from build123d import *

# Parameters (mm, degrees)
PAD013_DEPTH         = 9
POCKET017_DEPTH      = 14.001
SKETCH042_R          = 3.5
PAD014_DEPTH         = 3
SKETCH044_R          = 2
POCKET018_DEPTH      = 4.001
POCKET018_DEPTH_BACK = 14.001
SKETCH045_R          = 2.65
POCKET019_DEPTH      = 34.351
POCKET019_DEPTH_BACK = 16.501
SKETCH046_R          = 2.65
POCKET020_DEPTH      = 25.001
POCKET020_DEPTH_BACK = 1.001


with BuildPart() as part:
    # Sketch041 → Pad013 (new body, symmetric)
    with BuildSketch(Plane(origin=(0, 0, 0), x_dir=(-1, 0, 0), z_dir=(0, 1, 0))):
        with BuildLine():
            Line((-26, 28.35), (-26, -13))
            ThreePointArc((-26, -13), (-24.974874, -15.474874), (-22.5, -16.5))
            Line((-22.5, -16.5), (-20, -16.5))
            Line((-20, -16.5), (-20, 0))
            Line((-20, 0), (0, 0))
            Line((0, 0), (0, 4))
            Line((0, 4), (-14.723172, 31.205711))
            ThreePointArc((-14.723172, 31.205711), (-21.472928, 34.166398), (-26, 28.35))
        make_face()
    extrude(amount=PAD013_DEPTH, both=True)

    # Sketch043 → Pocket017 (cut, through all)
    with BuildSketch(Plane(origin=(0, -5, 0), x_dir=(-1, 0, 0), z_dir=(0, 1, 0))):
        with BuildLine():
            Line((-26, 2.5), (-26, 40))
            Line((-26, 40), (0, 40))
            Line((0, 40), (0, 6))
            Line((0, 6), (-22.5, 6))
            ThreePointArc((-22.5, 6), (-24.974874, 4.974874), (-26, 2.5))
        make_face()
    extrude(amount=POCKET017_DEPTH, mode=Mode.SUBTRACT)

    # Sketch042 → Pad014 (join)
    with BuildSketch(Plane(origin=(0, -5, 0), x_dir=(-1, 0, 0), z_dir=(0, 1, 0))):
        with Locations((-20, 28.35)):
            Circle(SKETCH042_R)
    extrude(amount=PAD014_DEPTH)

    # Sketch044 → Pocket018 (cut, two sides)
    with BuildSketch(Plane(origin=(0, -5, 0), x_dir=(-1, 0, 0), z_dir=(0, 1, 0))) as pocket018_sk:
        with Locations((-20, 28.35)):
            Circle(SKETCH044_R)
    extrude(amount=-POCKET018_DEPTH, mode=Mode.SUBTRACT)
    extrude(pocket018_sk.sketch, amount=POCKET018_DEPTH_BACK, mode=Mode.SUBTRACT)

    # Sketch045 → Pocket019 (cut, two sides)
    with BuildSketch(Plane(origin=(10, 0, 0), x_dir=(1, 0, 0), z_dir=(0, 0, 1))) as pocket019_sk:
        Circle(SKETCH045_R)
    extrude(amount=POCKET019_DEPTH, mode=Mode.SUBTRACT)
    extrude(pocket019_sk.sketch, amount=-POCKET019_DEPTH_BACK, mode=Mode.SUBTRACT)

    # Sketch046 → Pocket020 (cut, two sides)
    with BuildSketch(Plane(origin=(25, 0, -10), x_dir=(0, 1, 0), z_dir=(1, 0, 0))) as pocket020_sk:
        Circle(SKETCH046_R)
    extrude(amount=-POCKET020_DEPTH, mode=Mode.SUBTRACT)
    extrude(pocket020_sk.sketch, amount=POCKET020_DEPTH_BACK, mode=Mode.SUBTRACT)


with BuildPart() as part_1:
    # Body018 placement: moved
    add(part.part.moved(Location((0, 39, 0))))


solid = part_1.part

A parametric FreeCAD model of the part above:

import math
import FreeCAD as App
import Part
import Sketcher

V = App.Vector
Q = App.Units.Quantity

doc = App.newDocument("Part")
params = doc.addObject("Spreadsheet::Sheet", "Params")
for row, (alias, value) in enumerate([
    ("sketch1_radius", "6 mm"),
    ("sketch1_radius2", "3.499999 mm"),
    ("sketch1_width", "20 mm"),
    ("sketch1_height", "4 mm"),
    ("sketch1_height2", "16.5 mm"),
    ("pad1_length", "18 mm"),
    ("sketch2_radius", "3.499999 mm"),
    ("sketch2_width", "26 mm"),
    ("sketch2_height", "34 mm"),
    ("sketch3_diameter", "7 mm"),
    ("pad2_length", "3 mm"),
    ("sketch4_diameter", "4 mm"),
    ("sketch5_diameter", "5.3 mm"),
    ("sketch6_diameter", "5.3 mm"),
], start=1):
    params.set(f"A{row}", alias)
    params.set(f"B{row}", "=" + value)
    params.setAlias(f"B{row}", alias)

body = doc.addObject("PartDesign::Body", "Body")

sketch1 = body.newObject("Sketcher::SketchObject", "Sketch")
sketch1.AttachmentSupport = (doc.getObject("XZ_Plane"), [""])
sketch1.MapMode = "FlatFace"
sketch1.addGeometry(Part.LineSegment(V(26, 28.4, 0), V(26, -13, 0)), False)
sketch1.addGeometry(Part.ArcOfCircle(Part.Circle(V(22.5, -13, 0), V(0, 0, 1), 3.5), math.radians(-90), math.radians(0)), False)
sketch1.addGeometry(Part.LineSegment(V(22.5, -16.5, 0), V(20, -16.5, 0)), False)
sketch1.addGeometry(Part.LineSegment(V(20, -16.5, 0), V(20, 0, 0)), False)
sketch1.addGeometry(Part.LineSegment(V(20, 0, 0), V(0, 0, 0)), False)
sketch1.addGeometry(Part.LineSegment(V(0, 0, 0), V(0, 4, 0)), False)
sketch1.addGeometry(Part.LineSegment(V(0, 4, 0), V(14.7, 31.2, 0)), False)
sketch1.addGeometry(Part.ArcOfCircle(Part.Circle(V(20, 28.4, 0), V(0, 0, 1), 6), math.radians(0), math.radians(152)), False)
sketch1.addConstraint(Sketcher.Constraint("Tangent", 0, 2, 1, 2))
sketch1.addConstraint(Sketcher.Constraint("Tangent", 1, 1, 2, 1))
sketch1.addConstraint(Sketcher.Constraint("Coincident", 2, 2, 3, 1))
sketch1.addConstraint(Sketcher.Constraint("Coincident", 3, 2, 4, 1))
sketch1.addConstraint(Sketcher.Constraint("Coincident", 4, 2, 5, 1))
sketch1.addConstraint(Sketcher.Constraint("Coincident", 5, 2, 6, 1))
sketch1.addConstraint(Sketcher.Constraint("Tangent", 6, 2, 7, 2))
sketch1.addConstraint(Sketcher.Constraint("Tangent", 7, 1, 0, 1))
sketch1.addConstraint(Sketcher.Constraint("Vertical", 0))
sketch1.addConstraint(Sketcher.Constraint("Horizontal", 2))
sketch1.addConstraint(Sketcher.Constraint("Vertical", 3))
sketch1.addConstraint(Sketcher.Constraint("Horizontal", 4))
sketch1.addConstraint(Sketcher.Constraint("Vertical", 5))
sketch1.addConstraint(Sketcher.Constraint("Coincident", 4, 2, -1, 1))
sketch1.addConstraint(Sketcher.Constraint("Vertical", 7, 3, 2, 2))
sketch1.addConstraint(Sketcher.Constraint("Radius", 7, Q("6 mm")))
sketch1.addConstraint(Sketcher.Constraint("Radius", 1, Q("3.499999 mm")))
sketch1.addConstraint(Sketcher.Constraint("DistanceX", 4, 2, 4, 1, Q("20 mm")))
sketch1.addConstraint(Sketcher.Constraint("DistanceY", 5, 1, 5, 2, Q("4 mm")))
sketch1.addConstraint(Sketcher.Constraint("DistanceY", 3, 1, 3, 2, Q("16.5 mm")))
sketch1.addConstraint(Sketcher.Constraint("DistanceY", 0, 2, 0, 1, Q("41.35 mm")))
sketch1.setExpression("Constraints[15]", "Params.sketch1_radius")
sketch1.setExpression("Constraints[16]", "Params.sketch1_radius2")
sketch1.setExpression("Constraints[17]", "Params.sketch1_width")
sketch1.setExpression("Constraints[18]", "Params.sketch1_height")
sketch1.setExpression("Constraints[19]", "Params.sketch1_height2")
pad1 = body.newObject("PartDesign::Pad", "Pad")
pad1.Profile = sketch1
pad1.setExpression("Length", "Params.pad1_length")
pad1.Midplane = True

sketch2 = body.newObject("Sketcher::SketchObject", "Sketch001")
sketch2.AttachmentSupport = (doc.getObject("XZ_Plane"), [""])
sketch2.MapMode = "FlatFace"
sketch2.AttachmentOffset = App.Placement(V(0, 0, 5), App.Rotation())
sketch2.addGeometry(Part.LineSegment(V(26, 40, 0), V(26, 2.5, 0)), False)
sketch2.addGeometry(Part.ArcOfCircle(Part.Circle(V(22.5, 2.5, 0), V(0, 0, 1), 3.5), math.radians(0), math.radians(90)), False)
sketch2.addGeometry(Part.LineSegment(V(22.5, 6, 0), V(0, 6, 0)), False)
sketch2.addGeometry(Part.LineSegment(V(0, 6, 0), V(0, 40, 0)), False)
sketch2.addGeometry(Part.LineSegment(V(0, 40, 0), V(26, 40, 0)), False)
sketch2.addConstraint(Sketcher.Constraint("Tangent", 0, 2, 1, 1))
sketch2.addConstraint(Sketcher.Constraint("Tangent", 1, 2, 2, 1))
sketch2.addConstraint(Sketcher.Constraint("Coincident", 2, 2, 3, 1))
sketch2.addConstraint(Sketcher.Constraint("Coincident", 3, 2, 4, 1))
sketch2.addConstraint(Sketcher.Constraint("Coincident", 4, 2, 0, 1))
sketch2.addConstraint(Sketcher.Constraint("Vertical", 0))
sketch2.addConstraint(Sketcher.Constraint("Horizontal", 2))
sketch2.addConstraint(Sketcher.Constraint("Vertical", 3))
sketch2.addConstraint(Sketcher.Constraint("Horizontal", 4))
sketch2.addConstraint(Sketcher.Constraint("PointOnObject", 2, 2, -2))
sketch2.addConstraint(Sketcher.Constraint("Radius", 1, Q("3.499999 mm")))
sketch2.addConstraint(Sketcher.Constraint("DistanceX", 4, 1, 4, 2, Q("26 mm")))
sketch2.addConstraint(Sketcher.Constraint("DistanceY", 3, 1, 3, 2, Q("34 mm")))
sketch2.addConstraint(Sketcher.Constraint("DistanceY", -1, 1, 1, 2, Q("6 mm")))
sketch2.setExpression("Constraints[10]", "Params.sketch2_radius")
sketch2.setExpression("Constraints[11]", "Params.sketch2_width")
sketch2.setExpression("Constraints[12]", "Params.sketch2_height")
pocket1 = body.newObject("PartDesign::Pocket", "Pocket")
pocket1.Profile = sketch2
pocket1.Type = "ThroughAll"

sketch3 = body.newObject("Sketcher::SketchObject", "Sketch002")
sketch3.AttachmentSupport = (doc.getObject("XZ_Plane"), [""])
sketch3.MapMode = "FlatFace"
sketch3.AttachmentOffset = App.Placement(V(0, 0, 5), App.Rotation())
sketch3.addGeometry(Part.Circle(V(20, 28.4, 0), V(0, 0, 1), 3.5), False)
sketch3.addConstraint(Sketcher.Constraint("Diameter", 0, Q("7 mm")))
sketch3.addConstraint(Sketcher.Constraint("DistanceX", -1, 1, 0, 3, Q("20 mm")))
sketch3.addConstraint(Sketcher.Constraint("DistanceY", -1, 1, 0, 3, Q("28.35 mm")))
sketch3.setExpression("Constraints[0]", "Params.sketch3_diameter")
pad2 = body.newObject("PartDesign::Pad", "Pad001")
pad2.Profile = sketch3
pad2.setExpression("Length", "Params.pad2_length")
pad2.Reversed = True

sketch4 = body.newObject("Sketcher::SketchObject", "Sketch003")
sketch4.AttachmentSupport = (doc.getObject("XZ_Plane"), [""])
sketch4.MapMode = "FlatFace"
sketch4.AttachmentOffset = App.Placement(V(0, 0, 5), App.Rotation())
sketch4.addGeometry(Part.Circle(V(20, 28.4, 0), V(0, 0, 1), 2), False)
sketch4.addConstraint(Sketcher.Constraint("Diameter", 0, Q("4 mm")))
sketch4.addConstraint(Sketcher.Constraint("DistanceX", -1, 1, 0, 3, Q("20 mm")))
sketch4.addConstraint(Sketcher.Constraint("DistanceY", -1, 1, 0, 3, Q("28.35 mm")))
sketch4.setExpression("Constraints[0]", "Params.sketch4_diameter")
pocket2 = body.newObject("PartDesign::Pocket", "Pocket001")
pocket2.Profile = sketch4
pocket2.Type = "ThroughAll"
pocket2.Midplane = True

sketch5 = body.newObject("Sketcher::SketchObject", "Sketch004")
sketch5.AttachmentSupport = (doc.getObject("XY_Plane"), [""])
sketch5.MapMode = "FlatFace"
sketch5.addGeometry(Part.Circle(V(10, 0, 0), V(0, 0, 1), 2.6), False)
sketch5.addConstraint(Sketcher.Constraint("PointOnObject", 0, 3, -1))
sketch5.addConstraint(Sketcher.Constraint("Diameter", 0, Q("5.3 mm")))
sketch5.addConstraint(Sketcher.Constraint("DistanceX", -1, 1, 0, 3, Q("10 mm")))
sketch5.setExpression("Constraints[1]", "Params.sketch5_diameter")
pocket3 = body.newObject("PartDesign::Pocket", "Pocket002")
pocket3.Profile = sketch5
pocket3.Type = "ThroughAll"
pocket3.Midplane = True

sketch6 = body.newObject("Sketcher::SketchObject", "Sketch005")
sketch6.AttachmentSupport = (doc.getObject("YZ_Plane"), [""])
sketch6.MapMode = "FlatFace"
sketch6.AttachmentOffset = App.Placement(V(0, 0, 25), App.Rotation())
sketch6.addGeometry(Part.Circle(V(0, -10, 0), V(0, 0, 1), 2.6), False)
sketch6.addConstraint(Sketcher.Constraint("PointOnObject", 0, 3, -2))
sketch6.addConstraint(Sketcher.Constraint("Diameter", 0, Q("5.3 mm")))
sketch6.addConstraint(Sketcher.Constraint("DistanceY", 0, 3, -1, 1, Q("10 mm")))
sketch6.setExpression("Constraints[1]", "Params.sketch6_diameter")
pocket4 = body.newObject("PartDesign::Pocket", "Pocket003")
pocket4.Profile = sketch6
pocket4.Type = "ThroughAll"
pocket4.Midplane = True
body2 = doc.addObject("PartDesign::Body", "Body001")
doc.recompute()

body.Placement = App.Placement(V(0, 39, 0), App.Rotation(V(0, 0, 1), 0))
boolean = body2.newObject("PartDesign::Boolean", "Boolean")
boolean.Type = "Fuse"
boolean.addObjects([body])

doc.recompute()
